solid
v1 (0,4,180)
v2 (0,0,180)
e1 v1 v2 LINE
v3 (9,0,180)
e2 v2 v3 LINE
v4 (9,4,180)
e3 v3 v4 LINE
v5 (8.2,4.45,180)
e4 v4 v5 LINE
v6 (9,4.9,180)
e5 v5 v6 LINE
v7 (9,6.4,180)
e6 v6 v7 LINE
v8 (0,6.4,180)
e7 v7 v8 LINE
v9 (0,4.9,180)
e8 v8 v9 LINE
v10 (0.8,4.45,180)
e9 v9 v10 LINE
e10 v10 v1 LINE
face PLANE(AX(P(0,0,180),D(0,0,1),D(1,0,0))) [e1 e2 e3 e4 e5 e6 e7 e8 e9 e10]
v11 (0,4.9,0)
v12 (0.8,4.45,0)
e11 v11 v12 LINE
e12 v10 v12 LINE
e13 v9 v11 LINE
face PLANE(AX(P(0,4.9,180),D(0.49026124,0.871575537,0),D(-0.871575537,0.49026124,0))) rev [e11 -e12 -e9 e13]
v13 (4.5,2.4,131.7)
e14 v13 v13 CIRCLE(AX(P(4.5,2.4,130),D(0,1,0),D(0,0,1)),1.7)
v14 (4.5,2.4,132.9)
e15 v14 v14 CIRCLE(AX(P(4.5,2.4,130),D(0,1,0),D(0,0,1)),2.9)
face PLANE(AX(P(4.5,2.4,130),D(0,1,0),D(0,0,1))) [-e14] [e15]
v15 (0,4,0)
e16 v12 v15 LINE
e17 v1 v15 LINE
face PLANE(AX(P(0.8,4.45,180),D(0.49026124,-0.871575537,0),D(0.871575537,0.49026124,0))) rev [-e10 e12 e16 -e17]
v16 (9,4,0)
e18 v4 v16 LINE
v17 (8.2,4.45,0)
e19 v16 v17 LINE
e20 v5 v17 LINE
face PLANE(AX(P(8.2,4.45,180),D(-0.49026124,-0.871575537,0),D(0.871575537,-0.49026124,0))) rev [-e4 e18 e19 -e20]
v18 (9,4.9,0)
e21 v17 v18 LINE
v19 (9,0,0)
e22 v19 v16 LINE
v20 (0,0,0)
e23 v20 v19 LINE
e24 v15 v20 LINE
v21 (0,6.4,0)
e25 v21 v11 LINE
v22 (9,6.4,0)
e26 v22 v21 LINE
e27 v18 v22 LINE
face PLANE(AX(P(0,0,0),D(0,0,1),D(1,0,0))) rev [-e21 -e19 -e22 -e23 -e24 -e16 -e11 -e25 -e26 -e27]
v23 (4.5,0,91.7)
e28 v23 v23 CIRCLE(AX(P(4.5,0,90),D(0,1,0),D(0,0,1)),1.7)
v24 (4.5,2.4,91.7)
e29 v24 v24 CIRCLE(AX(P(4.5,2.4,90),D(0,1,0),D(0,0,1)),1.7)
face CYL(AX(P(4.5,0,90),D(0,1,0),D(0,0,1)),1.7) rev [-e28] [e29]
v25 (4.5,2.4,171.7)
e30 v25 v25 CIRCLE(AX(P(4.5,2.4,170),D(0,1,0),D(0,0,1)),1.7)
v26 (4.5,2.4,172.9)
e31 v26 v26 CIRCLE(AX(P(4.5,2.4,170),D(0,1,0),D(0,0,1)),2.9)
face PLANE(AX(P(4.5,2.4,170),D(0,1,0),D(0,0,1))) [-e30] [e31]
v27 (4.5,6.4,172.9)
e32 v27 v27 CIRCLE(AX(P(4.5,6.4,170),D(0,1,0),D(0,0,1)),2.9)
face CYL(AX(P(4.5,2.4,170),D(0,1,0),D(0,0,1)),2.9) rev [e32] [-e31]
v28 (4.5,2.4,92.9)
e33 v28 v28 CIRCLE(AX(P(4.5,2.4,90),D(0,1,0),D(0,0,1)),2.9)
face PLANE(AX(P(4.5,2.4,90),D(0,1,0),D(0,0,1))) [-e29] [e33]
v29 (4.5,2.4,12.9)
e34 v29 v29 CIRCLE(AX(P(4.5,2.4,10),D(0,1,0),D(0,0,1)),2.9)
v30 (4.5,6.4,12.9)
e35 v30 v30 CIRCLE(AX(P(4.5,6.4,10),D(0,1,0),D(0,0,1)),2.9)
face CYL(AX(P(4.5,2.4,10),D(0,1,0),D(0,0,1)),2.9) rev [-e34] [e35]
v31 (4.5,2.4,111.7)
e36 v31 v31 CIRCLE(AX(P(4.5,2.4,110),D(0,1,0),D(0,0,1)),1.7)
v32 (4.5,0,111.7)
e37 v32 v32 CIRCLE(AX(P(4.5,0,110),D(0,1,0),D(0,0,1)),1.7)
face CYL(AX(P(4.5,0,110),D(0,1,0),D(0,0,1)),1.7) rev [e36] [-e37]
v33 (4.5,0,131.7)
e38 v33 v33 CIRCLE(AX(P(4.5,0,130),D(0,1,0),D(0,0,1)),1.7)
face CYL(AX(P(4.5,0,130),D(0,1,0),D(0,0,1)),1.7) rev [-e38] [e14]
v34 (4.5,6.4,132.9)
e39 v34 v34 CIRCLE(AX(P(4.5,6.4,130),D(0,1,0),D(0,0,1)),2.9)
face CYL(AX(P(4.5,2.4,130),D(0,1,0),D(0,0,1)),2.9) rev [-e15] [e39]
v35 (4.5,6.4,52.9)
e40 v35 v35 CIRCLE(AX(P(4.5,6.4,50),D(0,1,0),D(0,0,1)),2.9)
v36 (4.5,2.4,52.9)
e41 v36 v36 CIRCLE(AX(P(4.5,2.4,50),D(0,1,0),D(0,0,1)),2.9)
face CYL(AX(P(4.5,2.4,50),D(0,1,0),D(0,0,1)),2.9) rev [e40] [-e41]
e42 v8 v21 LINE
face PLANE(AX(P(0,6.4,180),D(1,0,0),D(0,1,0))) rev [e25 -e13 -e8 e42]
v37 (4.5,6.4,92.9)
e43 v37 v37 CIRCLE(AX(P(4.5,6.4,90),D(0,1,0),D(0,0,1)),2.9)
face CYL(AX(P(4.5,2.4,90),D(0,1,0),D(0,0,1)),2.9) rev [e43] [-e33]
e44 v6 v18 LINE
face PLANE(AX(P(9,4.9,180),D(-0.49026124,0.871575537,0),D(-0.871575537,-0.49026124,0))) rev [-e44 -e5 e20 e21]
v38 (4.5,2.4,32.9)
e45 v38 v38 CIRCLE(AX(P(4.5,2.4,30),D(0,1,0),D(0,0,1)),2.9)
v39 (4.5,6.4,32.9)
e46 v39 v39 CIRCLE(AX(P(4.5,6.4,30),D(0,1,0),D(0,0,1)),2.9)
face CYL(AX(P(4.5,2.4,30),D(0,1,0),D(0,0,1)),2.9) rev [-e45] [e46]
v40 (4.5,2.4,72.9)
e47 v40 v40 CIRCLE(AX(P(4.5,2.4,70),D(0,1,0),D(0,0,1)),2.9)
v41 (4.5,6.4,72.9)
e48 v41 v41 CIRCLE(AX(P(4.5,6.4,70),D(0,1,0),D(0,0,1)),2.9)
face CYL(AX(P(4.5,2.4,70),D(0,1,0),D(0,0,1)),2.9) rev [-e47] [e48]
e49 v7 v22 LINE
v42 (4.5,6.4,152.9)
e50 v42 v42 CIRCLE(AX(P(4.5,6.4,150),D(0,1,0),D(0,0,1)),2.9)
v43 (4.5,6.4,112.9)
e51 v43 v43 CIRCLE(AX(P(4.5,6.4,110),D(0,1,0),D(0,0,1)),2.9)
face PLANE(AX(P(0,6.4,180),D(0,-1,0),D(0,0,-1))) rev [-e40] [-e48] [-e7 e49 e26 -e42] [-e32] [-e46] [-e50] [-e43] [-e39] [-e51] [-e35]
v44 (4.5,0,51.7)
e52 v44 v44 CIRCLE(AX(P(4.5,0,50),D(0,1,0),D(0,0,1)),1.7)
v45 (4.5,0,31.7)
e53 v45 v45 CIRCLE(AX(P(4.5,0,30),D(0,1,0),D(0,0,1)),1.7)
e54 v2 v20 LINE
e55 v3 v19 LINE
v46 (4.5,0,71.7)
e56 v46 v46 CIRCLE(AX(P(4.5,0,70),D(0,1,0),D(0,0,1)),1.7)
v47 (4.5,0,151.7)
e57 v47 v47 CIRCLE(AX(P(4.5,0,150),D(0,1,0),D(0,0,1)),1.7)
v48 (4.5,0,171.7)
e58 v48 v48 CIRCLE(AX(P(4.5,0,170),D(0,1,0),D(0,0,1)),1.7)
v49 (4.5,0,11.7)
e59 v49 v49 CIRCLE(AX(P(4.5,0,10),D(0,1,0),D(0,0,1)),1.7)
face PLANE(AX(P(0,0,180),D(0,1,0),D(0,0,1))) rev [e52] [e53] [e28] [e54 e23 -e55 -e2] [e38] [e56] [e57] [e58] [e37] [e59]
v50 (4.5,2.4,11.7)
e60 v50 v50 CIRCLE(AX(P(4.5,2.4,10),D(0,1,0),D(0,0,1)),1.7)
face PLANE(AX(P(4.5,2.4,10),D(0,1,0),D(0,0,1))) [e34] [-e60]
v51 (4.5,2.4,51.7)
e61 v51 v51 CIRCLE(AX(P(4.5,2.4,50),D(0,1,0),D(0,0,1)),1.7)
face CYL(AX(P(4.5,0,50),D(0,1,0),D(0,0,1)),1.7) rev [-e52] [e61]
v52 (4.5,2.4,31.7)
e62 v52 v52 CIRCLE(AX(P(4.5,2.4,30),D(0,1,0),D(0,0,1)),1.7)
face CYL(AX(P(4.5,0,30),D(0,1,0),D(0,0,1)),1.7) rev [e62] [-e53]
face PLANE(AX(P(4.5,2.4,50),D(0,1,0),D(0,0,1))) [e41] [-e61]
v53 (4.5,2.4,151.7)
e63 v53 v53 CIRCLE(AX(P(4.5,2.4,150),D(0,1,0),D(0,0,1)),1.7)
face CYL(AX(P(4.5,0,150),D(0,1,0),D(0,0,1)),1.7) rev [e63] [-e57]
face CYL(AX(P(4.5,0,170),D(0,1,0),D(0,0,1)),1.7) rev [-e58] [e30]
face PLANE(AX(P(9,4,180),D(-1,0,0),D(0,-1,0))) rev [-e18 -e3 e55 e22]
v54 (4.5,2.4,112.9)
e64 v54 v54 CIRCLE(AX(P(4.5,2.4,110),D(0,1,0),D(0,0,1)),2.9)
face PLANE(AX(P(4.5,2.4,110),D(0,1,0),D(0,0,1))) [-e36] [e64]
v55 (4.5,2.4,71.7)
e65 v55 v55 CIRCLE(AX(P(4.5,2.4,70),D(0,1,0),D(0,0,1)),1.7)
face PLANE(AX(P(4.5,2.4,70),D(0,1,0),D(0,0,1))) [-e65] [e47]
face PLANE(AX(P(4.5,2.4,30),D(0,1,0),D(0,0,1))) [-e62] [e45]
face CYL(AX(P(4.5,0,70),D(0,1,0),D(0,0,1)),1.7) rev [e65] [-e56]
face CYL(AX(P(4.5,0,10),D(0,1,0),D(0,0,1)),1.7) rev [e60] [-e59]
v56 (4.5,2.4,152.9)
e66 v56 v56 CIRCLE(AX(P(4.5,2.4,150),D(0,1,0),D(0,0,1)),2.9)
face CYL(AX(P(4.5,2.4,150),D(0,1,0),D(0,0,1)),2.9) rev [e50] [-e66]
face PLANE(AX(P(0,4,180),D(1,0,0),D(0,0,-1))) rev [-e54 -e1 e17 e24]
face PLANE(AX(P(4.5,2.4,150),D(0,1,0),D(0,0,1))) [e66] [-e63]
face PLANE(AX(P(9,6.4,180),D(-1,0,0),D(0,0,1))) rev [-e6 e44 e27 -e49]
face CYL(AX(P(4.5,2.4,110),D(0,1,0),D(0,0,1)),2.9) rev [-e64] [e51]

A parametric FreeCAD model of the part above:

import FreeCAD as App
import Part
import Sketcher
from FreeCAD import Vector

doc = App.newDocument("Part")
body = doc.addObject("PartDesign::Body", "Body")

sketch1 = body.newObject("Sketcher::SketchObject", "Sketch")
sketch1.AttachmentSupport = (doc.getObject("XY_Plane"), [""])
sketch1.MapMode = "FlatFace"
sketch1.addGeometry([
    Part.LineSegment(Vector(9, 4.9, 0), Vector(9, 6.4, 0)),
    Part.LineSegment(Vector(9, 6.4, 0), Vector(0, 6.4, 0)),
    Part.LineSegment(Vector(0, 6.4, 0), Vector(0, 4.9, 0)),
    Part.LineSegment(Vector(0, 4.9, 0), Vector(0.8, 4.45, 0)),
    Part.LineSegment(Vector(0.8, 4.45, 0), Vector(0, 4, 0)),
    Part.LineSegment(Vector(0, 4, 0), Vector(0, 0, 0)),
    Part.LineSegment(Vector(0, 0, 0), Vector(9, 0, 0)),
    Part.LineSegment(Vector(9, 0, 0), Vector(9, 4, 0)),
    Part.LineSegment(Vector(9, 4, 0), Vector(8.2, 4.45, 0)),
    Part.LineSegment(Vector(8.2, 4.45, 0), Vector(9, 4.9, 0)),
], False)
sketch1.addConstraint([
    Sketcher.Constraint("Coincident", 0, 2, 1, 1),
    Sketcher.Constraint("Coincident", 1, 2, 2, 1),
    Sketcher.Constraint("Coincident", 2, 2, 3, 1),
    Sketcher.Constraint("Coincident", 3, 2, 4, 1),
    Sketcher.Constraint("Coincident", 4, 2, 5, 1),
    Sketcher.Constraint("Coincident", 5, 2, 6, 1),
    Sketcher.Constraint("Coincident", 6, 2, 7, 1),
    Sketcher.Constraint("Coincident", 7, 2, 8, 1),
    Sketcher.Constraint("Coincident", 8, 2, 9, 1),
    Sketcher.Constraint("Coincident", 9, 2, 0, 1),
    Sketcher.Constraint("Vertical", 0),
    Sketcher.Constraint("Horizontal", 1),
    Sketcher.Constraint("Vertical", 2),
    Sketcher.Constraint("Vertical", 5),
    Sketcher.Constraint("Horizontal", 6),
    Sketcher.Constraint("Vertical", 7),
    Sketcher.Constraint("Coincident", 5, 2, -1, 1),
    Sketcher.Constraint("PointOnObject", 1, 2, -2),
    Sketcher.Constraint("Parallel", 3, 8),
    Sketcher.Constraint("Parallel", 4, 9),
    Sketcher.Constraint("Horizontal", 4, 2, 7, 2),
    Sketcher.Constraint("Horizontal", 3, 2, 8, 2),
    Sketcher.Constraint("Horizontal", 2, 2, 9, 2),
    Sketcher.Constraint("Vertical", 0, 2, 6, 2),
    Sketcher.Constraint("DistanceX", 1, 2, 1, 1, 9.0),
    Sketcher.Constraint("DistanceY", 5, 2, 5, 1, 4.0),
    Sketcher.Constraint("DistanceY", 0, 1, 0, 2, 1.5),
    Sketcher.Constraint("DistanceY", -1, 1, 0, 2, 6.4),
    Sketcher.Constraint("DistanceX", -1, 1, 3, 2, 0.8),
])
pad1 = body.newObject("PartDesign::Pad", "Pad")
pad1.Profile = sketch1
pad1.Length = 180

sketch2 = body.newObject("Sketcher::SketchObject", "Sketch001")
sketch2.AttachmentSupport = (doc.getObject("XZ_Plane"), [""])
sketch2.MapMode = "FlatFace"
sketch2.AttachmentOffset = App.Placement(Vector(0, 0, -6.4), App.Rotation())
sketch2.addGeometry([
    Part.Circle(Vector(4.5, 170, 0), Vector(0, 0, 1), 2.9),
    Part.Circle(Vector(4.5, 150, 0), Vector(0, 0, 1), 2.9),
    Part.Circle(Vector(4.5, 130, 0), Vector(0, 0, 1), 2.9),
    Part.Circle(Vector(4.5, 110, 0), Vector(0, 0, 1), 2.9),
    Part.Circle(Vector(4.5, 90, 0), Vector(0, 0, 1), 2.9),
    Part.Circle(Vector(4.5, 70, 0), Vector(0, 0, 1), 2.9),
    Part.Circle(Vector(4.5, 50, 0), Vector(0, 0, 1), 2.9),
    Part.Circle(Vector(4.5, 30, 0), Vector(0, 0, 1), 2.9),
    Part.Circle(Vector(4.5, 10, 0), Vector(0, 0, 1), 2.9),
], False)
sketch2.addConstraint([
    Sketcher.Constraint("Equal", 0, 1),
    Sketcher.Constraint("Equal", 1, 2),
    Sketcher.Constraint("Equal", 2, 3),
    Sketcher.Constraint("Equal", 3, 4),
    Sketcher.Constraint("Equal", 4, 5),
    Sketcher.Constraint("Equal", 5, 6),
    Sketcher.Constraint("Equal", 6, 7),
    Sketcher.Constraint("Equal", 7, 8),
    Sketcher.Constraint("Vertical", 0, 3, 1, 3),
    Sketcher.Constraint("Vertical", 1, 3, 2, 3),
    Sketcher.Constraint("Vertical", 2, 3, 3, 3),
    Sketcher.Constraint("Vertical", 3, 3, 4, 3),
    Sketcher.Constraint("Vertical", 4, 3, 5, 3),
    Sketcher.Constraint("Vertical", 5, 3, 6, 3),
    Sketcher.Constraint("Vertical", 6, 3, 7, 3),
    Sketcher.Constraint("Vertical", 7, 3, 8, 3),
    Sketcher.Constraint("Diameter", 0, 5.8),
    Sketcher.Constraint("DistanceY", -1, 1, 0, 3, 170.0),
    Sketcher.Constraint("DistanceY", -1, 1, 1, 3, 150.0),
    Sketcher.Constraint("DistanceY", -1, 1, 2, 3, 130.0),
    Sketcher.Constraint("DistanceY", -1, 1, 3, 3, 110.0),
    Sketcher.Constraint("DistanceY", -1, 1, 4, 3, 90.0),
    Sketcher.Constraint("DistanceY", -1, 1, 5, 3, 70.0),
    Sketcher.Constraint("DistanceY", -1, 1, 6, 3, 50.0),
    Sketcher.Constraint("DistanceY", -1, 1, 7, 3, 30.0),
    Sketcher.Constraint("DistanceY", -1, 1, 8, 3, 10.0),
    Sketcher.Constraint("DistanceX", -1, 1, 0, 3, 4.5),
])
pocket1 = body.newObject("PartDesign::Pocket", "Pocket")
pocket1.Profile = sketch2
pocket1.Length = 4
pocket1.Reversed = True

sketch3 = body.newObject("Sketcher::SketchObject", "Sketch002")
sketch3.AttachmentSupport = (doc.getObject("XZ_Plane"), [""])
sketch3.MapMode = "FlatFace"
sketch3.AttachmentOffset = App.Placement(Vector(0, 0, -2.4), App.Rotation())
sketch3.addGeometry([
    Part.Circle(Vector(4.5, 170, 0), Vector(0, 0, 1), 1.7),
    Part.Circle(Vector(4.5, 150, 0), Vector(0, 0, 1), 1.7),
    Part.Circle(Vector(4.5, 130, 0), Vector(0, 0, 1), 1.7),
    Part.Circle(Vector(4.5, 110, 0), Vector(0, 0, 1), 1.7),
    Part.Circle(Vector(4.5, 90, 0), Vector(0, 0, 1), 1.7),
    Part.Circle(Vector(4.5, 70, 0), Vector(0, 0, 1), 1.7),
    Part.Circle(Vector(4.5, 50, 0), Vector(0, 0, 1), 1.7),
    Part.Circle(Vector(4.5, 30, 0), Vector(0, 0, 1), 1.7),
    Part.Circle(Vector(4.5, 10, 0), Vector(0, 0, 1), 1.7),
], False)
sketch3.addConstraint([
    Sketcher.Constraint("Equal", 0, 1),
    Sketcher.Constraint("Equal", 1, 2),
    Sketcher.Constraint("Equal", 2, 3),
    Sketcher.Constraint("Equal", 3, 4),
    Sketcher.Constraint("Equal", 4, 5),
    Sketcher.Constraint("Equal", 5, 6),
    Sketcher.Constraint("Equal", 6, 7),
    Sketcher.Constraint("Equal", 7, 8),
    Sketcher.Constraint("Vertical", 0, 3, 1, 3),
    Sketcher.Constraint("Vertical", 1, 3, 2, 3),
    Sketcher.Constraint("Vertical", 2, 3, 3, 3),
    Sketcher.Constraint("Vertical", 3, 3, 4, 3),
    Sketcher.Constraint("Vertical", 4, 3, 5, 3),
    Sketcher.Constraint("Vertical", 5, 3, 6, 3),
    Sketcher.Constraint("Vertical", 6, 3, 7, 3),
    Sketcher.Constraint("Vertical", 7, 3, 8, 3),
    Sketcher.Constraint("Diameter", 0, 3.4),
    Sketcher.Constraint("DistanceY", -1, 1, 0, 3, 170.0),
    Sketcher.Constraint("DistanceY", -1, 1, 1, 3, 150.0),
    Sketcher.Constraint("DistanceY", -1, 1, 2, 3, 130.0),
    Sketcher.Constraint("DistanceY", -1, 1, 3, 3, 110.0),
    Sketcher.Constraint("DistanceY", -1, 1, 4, 3, 90.0),
    Sketcher.Constraint("DistanceY", -1, 1, 5, 3, 70.0),
    Sketcher.Constraint("DistanceY", -1, 1, 6, 3, 50.0),
    Sketcher.Constraint("DistanceY", -1, 1, 7, 3, 30.0),
    Sketcher.Constraint("DistanceY", -1, 1, 8, 3, 10.0),
    Sketcher.Constraint("DistanceX", -1, 1, 0, 3, 4.5),
])
pocket2 = body.newObject("PartDesign::Pocket", "Pocket001")
pocket2.Profile = sketch3
pocket2.Type = "ThroughAll"
pocket2.Reversed = True

doc.recompute()
